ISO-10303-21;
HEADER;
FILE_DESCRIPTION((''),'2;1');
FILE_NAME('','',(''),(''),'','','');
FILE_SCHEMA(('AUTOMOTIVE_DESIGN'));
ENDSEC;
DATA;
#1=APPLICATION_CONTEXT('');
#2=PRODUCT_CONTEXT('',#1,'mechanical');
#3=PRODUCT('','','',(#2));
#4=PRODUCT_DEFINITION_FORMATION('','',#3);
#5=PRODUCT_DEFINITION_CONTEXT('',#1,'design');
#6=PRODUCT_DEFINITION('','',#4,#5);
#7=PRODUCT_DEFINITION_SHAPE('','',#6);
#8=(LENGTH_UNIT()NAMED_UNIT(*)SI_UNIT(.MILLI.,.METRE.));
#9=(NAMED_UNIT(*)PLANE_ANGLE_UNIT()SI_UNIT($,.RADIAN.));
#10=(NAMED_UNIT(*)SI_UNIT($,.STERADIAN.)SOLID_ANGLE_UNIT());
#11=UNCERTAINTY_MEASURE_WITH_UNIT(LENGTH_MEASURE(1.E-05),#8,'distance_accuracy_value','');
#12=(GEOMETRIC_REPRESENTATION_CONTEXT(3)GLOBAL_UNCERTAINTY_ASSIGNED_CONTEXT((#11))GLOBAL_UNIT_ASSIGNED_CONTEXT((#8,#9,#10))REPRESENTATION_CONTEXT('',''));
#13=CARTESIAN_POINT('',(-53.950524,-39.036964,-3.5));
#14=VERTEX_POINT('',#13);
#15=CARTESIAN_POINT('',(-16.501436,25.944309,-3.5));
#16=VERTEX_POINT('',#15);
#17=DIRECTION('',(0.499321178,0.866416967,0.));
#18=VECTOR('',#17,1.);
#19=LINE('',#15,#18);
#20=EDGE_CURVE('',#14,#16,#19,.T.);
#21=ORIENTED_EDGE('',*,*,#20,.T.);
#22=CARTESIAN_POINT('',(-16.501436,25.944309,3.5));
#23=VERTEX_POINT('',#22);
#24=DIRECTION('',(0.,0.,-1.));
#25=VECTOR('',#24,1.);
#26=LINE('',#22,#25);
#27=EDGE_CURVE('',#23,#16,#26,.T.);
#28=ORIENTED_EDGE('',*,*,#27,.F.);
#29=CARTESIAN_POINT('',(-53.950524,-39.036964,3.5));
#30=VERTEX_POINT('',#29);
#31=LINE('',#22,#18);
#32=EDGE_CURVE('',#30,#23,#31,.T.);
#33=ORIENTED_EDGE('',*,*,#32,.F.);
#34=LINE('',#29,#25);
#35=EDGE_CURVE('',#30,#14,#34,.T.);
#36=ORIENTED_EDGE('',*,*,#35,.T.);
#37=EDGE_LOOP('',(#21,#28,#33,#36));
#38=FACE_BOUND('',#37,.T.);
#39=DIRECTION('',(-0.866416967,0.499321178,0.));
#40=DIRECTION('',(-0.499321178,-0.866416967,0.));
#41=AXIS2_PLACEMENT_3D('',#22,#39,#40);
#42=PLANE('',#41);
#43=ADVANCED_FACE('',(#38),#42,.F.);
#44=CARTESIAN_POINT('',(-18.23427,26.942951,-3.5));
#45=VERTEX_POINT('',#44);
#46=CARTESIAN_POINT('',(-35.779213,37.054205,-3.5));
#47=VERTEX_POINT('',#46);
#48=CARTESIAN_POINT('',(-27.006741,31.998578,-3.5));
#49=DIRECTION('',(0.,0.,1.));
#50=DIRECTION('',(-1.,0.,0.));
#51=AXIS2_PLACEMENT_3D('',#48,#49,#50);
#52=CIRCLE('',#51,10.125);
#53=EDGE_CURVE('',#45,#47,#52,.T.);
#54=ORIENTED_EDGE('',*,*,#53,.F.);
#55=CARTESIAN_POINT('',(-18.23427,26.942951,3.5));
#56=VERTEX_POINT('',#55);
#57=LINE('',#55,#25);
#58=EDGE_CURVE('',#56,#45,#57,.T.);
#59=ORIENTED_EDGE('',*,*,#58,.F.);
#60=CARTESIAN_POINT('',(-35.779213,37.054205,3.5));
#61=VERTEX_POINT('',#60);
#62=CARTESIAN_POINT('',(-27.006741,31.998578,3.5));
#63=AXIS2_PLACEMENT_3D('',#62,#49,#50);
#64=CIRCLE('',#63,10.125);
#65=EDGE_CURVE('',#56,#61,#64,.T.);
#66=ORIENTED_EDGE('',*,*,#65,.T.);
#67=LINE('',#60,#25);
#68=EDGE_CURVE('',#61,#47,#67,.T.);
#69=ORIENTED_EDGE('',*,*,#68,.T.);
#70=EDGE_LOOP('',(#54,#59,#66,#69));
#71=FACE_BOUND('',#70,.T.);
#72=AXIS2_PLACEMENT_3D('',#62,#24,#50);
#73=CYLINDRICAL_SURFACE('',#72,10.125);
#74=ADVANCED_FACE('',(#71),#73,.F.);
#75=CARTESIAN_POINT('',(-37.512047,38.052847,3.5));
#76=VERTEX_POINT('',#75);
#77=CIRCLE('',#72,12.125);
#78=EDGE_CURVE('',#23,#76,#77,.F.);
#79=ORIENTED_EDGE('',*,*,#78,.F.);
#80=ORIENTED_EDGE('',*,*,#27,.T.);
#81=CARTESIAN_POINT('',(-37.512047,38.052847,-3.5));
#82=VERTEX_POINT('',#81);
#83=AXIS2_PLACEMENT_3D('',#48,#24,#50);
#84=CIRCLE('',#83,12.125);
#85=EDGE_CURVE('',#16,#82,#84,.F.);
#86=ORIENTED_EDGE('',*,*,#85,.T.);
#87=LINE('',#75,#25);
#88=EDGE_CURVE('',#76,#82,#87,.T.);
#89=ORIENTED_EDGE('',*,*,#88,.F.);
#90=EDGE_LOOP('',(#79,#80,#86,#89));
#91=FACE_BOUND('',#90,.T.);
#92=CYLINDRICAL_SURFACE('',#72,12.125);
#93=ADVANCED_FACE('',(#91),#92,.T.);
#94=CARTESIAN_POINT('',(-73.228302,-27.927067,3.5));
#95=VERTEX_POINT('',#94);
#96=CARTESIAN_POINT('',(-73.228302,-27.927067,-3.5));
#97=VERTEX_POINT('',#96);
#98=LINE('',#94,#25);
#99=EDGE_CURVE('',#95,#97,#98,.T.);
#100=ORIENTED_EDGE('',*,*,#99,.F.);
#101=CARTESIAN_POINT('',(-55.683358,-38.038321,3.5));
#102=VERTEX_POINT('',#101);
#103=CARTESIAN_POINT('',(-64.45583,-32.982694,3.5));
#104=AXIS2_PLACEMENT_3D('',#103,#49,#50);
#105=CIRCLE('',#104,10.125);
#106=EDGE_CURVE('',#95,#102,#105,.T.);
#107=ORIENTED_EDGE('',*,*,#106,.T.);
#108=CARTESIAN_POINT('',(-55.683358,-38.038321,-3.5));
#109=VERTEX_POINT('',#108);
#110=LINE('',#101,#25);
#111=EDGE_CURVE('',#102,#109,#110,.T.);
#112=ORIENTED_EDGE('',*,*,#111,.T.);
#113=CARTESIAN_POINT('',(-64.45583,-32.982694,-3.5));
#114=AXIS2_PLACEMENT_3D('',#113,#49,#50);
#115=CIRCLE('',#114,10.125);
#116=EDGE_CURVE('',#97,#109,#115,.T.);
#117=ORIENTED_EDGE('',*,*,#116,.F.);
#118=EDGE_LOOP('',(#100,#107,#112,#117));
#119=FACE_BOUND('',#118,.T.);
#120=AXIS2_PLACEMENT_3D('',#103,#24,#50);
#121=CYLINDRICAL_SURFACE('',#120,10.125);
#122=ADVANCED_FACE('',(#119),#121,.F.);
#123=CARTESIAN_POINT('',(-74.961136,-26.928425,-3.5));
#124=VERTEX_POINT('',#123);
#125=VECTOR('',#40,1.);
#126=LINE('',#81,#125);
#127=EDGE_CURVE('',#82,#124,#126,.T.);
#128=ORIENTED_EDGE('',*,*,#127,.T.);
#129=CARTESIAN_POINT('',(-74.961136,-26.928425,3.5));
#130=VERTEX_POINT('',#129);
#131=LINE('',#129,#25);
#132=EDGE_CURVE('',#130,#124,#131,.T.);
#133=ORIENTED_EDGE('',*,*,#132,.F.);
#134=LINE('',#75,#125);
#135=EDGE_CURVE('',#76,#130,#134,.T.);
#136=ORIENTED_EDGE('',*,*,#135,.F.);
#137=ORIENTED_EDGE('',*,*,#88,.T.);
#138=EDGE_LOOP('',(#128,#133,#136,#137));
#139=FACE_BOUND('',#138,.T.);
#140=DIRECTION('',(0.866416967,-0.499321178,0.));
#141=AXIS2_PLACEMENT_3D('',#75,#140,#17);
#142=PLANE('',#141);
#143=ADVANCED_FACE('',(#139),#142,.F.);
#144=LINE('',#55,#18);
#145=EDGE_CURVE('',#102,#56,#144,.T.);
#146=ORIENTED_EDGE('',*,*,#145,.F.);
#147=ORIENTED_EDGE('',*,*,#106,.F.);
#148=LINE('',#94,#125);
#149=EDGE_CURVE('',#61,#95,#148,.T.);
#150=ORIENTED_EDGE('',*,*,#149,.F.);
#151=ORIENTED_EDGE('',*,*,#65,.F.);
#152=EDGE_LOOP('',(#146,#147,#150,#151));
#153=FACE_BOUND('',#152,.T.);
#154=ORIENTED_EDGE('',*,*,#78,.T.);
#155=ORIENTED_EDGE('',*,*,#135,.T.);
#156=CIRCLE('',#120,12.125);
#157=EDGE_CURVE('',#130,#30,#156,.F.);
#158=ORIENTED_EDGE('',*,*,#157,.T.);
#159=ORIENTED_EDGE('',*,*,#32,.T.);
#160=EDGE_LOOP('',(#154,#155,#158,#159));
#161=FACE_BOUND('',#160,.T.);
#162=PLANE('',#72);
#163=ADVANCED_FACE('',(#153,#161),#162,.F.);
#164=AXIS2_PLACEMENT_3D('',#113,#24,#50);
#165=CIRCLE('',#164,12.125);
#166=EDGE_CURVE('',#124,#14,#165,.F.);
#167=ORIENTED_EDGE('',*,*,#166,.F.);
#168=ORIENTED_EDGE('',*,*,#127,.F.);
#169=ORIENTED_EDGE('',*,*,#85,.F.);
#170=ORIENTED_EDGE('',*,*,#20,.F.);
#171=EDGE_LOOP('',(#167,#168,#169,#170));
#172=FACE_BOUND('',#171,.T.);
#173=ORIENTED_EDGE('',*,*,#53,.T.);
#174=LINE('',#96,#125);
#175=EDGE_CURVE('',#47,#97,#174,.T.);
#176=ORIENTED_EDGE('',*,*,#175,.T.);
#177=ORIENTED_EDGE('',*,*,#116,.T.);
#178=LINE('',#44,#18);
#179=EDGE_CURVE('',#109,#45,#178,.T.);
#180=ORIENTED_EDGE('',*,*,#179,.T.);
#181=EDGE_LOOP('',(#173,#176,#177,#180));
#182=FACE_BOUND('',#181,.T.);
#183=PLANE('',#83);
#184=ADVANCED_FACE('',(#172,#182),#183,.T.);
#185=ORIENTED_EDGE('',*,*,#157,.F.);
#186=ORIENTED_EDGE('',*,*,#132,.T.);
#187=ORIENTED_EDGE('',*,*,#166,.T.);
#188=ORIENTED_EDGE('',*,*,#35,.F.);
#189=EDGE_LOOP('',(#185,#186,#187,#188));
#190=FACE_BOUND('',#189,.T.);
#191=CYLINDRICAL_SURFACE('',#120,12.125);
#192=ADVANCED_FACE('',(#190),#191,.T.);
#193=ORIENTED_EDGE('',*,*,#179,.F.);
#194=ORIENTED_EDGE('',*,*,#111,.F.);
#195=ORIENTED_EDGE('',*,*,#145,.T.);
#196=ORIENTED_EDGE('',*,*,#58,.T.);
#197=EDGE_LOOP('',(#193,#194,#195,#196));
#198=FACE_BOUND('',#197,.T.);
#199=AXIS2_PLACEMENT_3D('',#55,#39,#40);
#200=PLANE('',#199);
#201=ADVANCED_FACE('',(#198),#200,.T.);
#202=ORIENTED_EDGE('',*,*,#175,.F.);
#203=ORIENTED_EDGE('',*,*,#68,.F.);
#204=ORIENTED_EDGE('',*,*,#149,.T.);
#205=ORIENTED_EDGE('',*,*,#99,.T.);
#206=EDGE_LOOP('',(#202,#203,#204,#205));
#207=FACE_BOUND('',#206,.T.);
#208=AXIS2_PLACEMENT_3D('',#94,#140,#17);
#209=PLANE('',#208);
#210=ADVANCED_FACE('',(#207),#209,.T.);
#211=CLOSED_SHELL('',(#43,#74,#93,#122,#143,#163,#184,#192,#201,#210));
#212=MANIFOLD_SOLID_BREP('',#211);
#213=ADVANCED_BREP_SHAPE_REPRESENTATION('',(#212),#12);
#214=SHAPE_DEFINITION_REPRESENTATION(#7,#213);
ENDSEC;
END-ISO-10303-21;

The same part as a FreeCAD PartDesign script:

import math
import FreeCAD as App
import Part
import Sketcher

V = App.Vector

doc = App.newDocument("Part")
body = doc.addObject("PartDesign::Body", "Body")

# Sketch on XY plane
sketch1 = doc.addObject("Sketcher::SketchObject", "Sketch")
body.addObject(sketch1)
sketch1.AttachmentSupport = (doc.XY_Plane, [""])
sketch1.MapMode = "FlatFace"
sketch1.addGeometry([
    Part.LineSegment(V(-37.512047, 38.052847, 0), V(-74.961136, -26.928425, 0)),  # 0
    Part.ArcOfCircle(Part.Circle(V(-64.45583, -32.982694, 0), V(0, 0, 1), 12.125), math.radians(150.0449), math.radians(330.0449)),  # 1
    Part.LineSegment(V(-53.950524, -39.036964, 0), V(-16.501436, 25.944309, 0)),  # 2
    Part.ArcOfCircle(Part.Circle(V(-27.006741, 31.998578, 0), V(0, 0, 1), 12.125), math.radians(-29.9551), math.radians(150.0449)),  # 3
    Part.LineSegment(V(-73.228302, -27.927067, 0), V(-35.779213, 37.054205, 0)),  # 4
    Part.ArcOfCircle(Part.Circle(V(-27.006741, 31.998578, 0), V(0, 0, 1), 10.125), math.radians(-29.9551), math.radians(150.0449)),  # 5
    Part.LineSegment(V(-18.23427, 26.942951, 0), V(-55.683358, -38.038321, 0)),  # 6
    Part.ArcOfCircle(Part.Circle(V(-64.45583, -32.982694, 0), V(0, 0, 1), 10.125), math.radians(150.0449), math.radians(330.0449)),  # 7
], False)
sketch1.addConstraint([
    Sketcher.Constraint("Tangent", 0, 2, 1, 1),
    Sketcher.Constraint("Tangent", 1, 2, 2, 1),
    Sketcher.Constraint("Tangent", 2, 2, 3, 1),
    Sketcher.Constraint("Tangent", 3, 2, 0, 1),
    Sketcher.Constraint("Tangent", 4, 2, 5, 2),
    Sketcher.Constraint("Tangent", 5, 1, 6, 1),
    Sketcher.Constraint("Tangent", 6, 2, 7, 2),
    Sketcher.Constraint("Tangent", 7, 1, 4, 1),
    Sketcher.Constraint("Coincident", 5, 3, 3, 3),
    Sketcher.Constraint("Coincident", 7, 3, 1, 3),
    Sketcher.Constraint("Equal", 1, 3),
    Sketcher.Constraint("Equal", 5, 7),
    Sketcher.Constraint("Distance", 0, 75.0),
    Sketcher.Constraint("Radius", 1, 12.125),
    Sketcher.Constraint("Radius", 5, 10.125),
    Sketcher.Constraint("DistanceX", 7, 1, -1, 1, 73.228302),
    Sketcher.Constraint("DistanceX", 1, 3, -1, 1, 64.45583),
    Sketcher.Constraint("DistanceY", -1, 1, 3, 3, 31.998578),
])
pad1 = doc.addObject("PartDesign::Pad", "Pad")
body.addObject(pad1)
pad1.Profile = sketch1
pad1.Length = 7
pad1.Midplane = True

doc.recompute()
